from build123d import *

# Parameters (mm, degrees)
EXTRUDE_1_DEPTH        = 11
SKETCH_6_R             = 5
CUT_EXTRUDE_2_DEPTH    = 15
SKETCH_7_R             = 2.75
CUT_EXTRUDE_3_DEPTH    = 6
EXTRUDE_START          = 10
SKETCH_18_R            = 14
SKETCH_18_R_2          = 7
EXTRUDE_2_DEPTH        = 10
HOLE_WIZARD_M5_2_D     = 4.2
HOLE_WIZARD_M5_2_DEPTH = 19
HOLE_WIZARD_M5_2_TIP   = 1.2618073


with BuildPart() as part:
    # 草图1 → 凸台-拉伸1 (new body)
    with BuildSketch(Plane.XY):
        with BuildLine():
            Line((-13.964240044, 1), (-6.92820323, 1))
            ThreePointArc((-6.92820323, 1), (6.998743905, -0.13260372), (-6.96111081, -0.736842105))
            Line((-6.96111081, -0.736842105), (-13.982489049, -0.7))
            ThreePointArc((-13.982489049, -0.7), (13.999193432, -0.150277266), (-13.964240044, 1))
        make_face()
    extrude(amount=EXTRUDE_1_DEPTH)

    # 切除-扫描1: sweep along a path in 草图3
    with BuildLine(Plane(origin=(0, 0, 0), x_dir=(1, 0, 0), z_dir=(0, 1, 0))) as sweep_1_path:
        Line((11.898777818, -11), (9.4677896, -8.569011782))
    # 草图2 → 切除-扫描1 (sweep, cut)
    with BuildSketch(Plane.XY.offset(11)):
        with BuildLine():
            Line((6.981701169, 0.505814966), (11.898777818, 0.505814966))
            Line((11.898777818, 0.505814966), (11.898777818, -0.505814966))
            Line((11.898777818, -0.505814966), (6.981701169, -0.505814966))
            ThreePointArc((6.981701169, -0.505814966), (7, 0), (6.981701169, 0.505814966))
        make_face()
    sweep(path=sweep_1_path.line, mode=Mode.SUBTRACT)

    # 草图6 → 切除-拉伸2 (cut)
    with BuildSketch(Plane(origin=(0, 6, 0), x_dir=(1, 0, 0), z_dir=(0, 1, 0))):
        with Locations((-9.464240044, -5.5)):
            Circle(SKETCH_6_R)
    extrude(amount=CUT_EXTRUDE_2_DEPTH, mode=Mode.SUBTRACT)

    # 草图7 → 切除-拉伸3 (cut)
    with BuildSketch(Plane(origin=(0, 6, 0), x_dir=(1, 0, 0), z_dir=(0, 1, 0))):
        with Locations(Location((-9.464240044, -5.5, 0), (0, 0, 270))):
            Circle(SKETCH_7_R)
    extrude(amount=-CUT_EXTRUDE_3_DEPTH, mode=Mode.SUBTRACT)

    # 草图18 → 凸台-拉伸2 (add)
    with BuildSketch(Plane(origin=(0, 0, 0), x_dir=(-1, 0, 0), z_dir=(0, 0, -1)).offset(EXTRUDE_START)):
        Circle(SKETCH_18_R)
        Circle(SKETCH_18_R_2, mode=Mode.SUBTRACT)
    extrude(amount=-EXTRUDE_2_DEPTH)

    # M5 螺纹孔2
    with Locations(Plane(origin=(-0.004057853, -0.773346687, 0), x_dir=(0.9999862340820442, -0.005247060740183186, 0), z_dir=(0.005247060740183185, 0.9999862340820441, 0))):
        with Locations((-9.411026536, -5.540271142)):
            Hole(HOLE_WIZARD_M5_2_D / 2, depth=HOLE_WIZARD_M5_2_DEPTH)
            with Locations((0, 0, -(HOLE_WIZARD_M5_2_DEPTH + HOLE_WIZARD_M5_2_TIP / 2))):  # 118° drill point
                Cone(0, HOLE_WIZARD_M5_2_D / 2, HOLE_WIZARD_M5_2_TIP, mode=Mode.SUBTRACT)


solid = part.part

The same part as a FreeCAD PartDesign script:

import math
import FreeCAD as App
import Part
import Sketcher
Q = App.Units.Quantity

doc = App.newDocument("Part")
params = doc.addObject("Spreadsheet::Sheet", "Params")
for row, (alias, value) in enumerate([
    ("sketch1_radius", "7 mm"),
    ("sketch1_radius2", "14 mm"),
    ("pad1_length", "11 mm"),
    ("sketch2_radius", "7 mm"),
    ("sketch4_diameter", "10 mm"),
    ("pocket1_length", "15 mm"),
    ("sketch5_diameter", "5.5 mm"),
    ("pocket2_length", "6 mm"),
    ("sketch6_diameter", "28 mm"),
    ("sketch6_diameter2", "14 mm"),
    ("pad2_length", "10 mm"),
    ("sketch7_diameter", "4.2 mm"),
    ("hole_diameter", "4.2 mm"),
    ("hole_depth", "19 mm"),
], start=1):
    params.set(f"A{row}", alias)
    params.set(f"B{row}", "=" + value)
    params.setAlias(f"B{row}", alias)

body = doc.addObject("PartDesign::Body", "Body")

# Sketch on XY plane
sketch1 = body.newObject("Sketcher::SketchObject", "Sketch")
sketch1.AttachmentSupport = (doc.getObject("XY_Plane"), [""])
sketch1.MapMode = "FlatFace"
sketch1.addGeometry([
    Part.LineSegment(App.Vector(-14, 1, 0), App.Vector(-6.9, 1, 0)),
    Part.ArcOfCircle(Part.Circle(App.Vector(0, 0, 0), App.Vector(0, 0, 1), 7), math.radians(-174), math.radians(172)),
    Part.LineSegment(App.Vector(-7, -0.7, 0), App.Vector(-14, -0.7, 0)),
    Part.ArcOfCircle(Part.Circle(App.Vector(0, 0, 0), App.Vector(0, 0, 1), 14), math.radians(-177), math.radians(176)),
], False)
sketch1.addConstraint([
    Sketcher.Constraint("Coincident", 0, 2, 1, 2),
    Sketcher.Constraint("Coincident", 1, 1, 2, 1),
    Sketcher.Constraint("Coincident", 2, 2, 3, 1),
    Sketcher.Constraint("Coincident", 3, 2, 0, 1),
    Sketcher.Constraint("Horizontal", 0),
    Sketcher.Constraint("Coincident", 1, 3, -1, 1),
    Sketcher.Constraint("Coincident", 3, 3, -1, 1),
    Sketcher.Constraint("Radius", 1, Q("7 mm")),
    Sketcher.Constraint("Radius", 3, Q("14 mm")),
    Sketcher.Constraint("DistanceY", -1, 1, 0, 2, Q("1 mm")),
    Sketcher.Constraint("DistanceY", 2, 2, -1, 1, Q("0.7 mm")),
    Sketcher.Constraint("DistanceX", 1, 1, -1, 1, Q("6.961111 mm")),
])
sketch1.setExpression("Constraints[7]", "Params.sketch1_radius")
sketch1.setExpression("Constraints[8]", "Params.sketch1_radius2")
pad1 = body.newObject("PartDesign::Pad", "Pad")
pad1.Profile = sketch1
pad1.setExpression("Length", "Params.pad1_length")

# Sketch on XY plane
sketch2 = body.newObject("Sketcher::SketchObject", "Sketch001")
sketch2.AttachmentSupport = (doc.getObject("XY_Plane"), [""])
sketch2.MapMode = "FlatFace"
sketch2.AttachmentOffset = App.Placement(App.Vector(0, 0, 11), App.Rotation())
sketch2.addGeometry([
    Part.LineSegment(App.Vector(11.9, 0.5, 0), App.Vector(7, 0.5, 0)),
    Part.ArcOfCircle(Part.Circle(App.Vector(0, 0, 0), App.Vector(0, 0, 1), 7), math.radians(-4.14), math.radians(4.14)),
    Part.LineSegment(App.Vector(7, -0.5, 0), App.Vector(11.9, -0.5, 0)),
    Part.LineSegment(App.Vector(11.9, -0.5, 0), App.Vector(11.9, 0.5, 0)),
], False)
sketch2.addConstraint([
    Sketcher.Constraint("Coincident", 0, 2, 1, 2),
    Sketcher.Constraint("Coincident", 1, 1, 2, 1),
    Sketcher.Constraint("Coincident", 2, 2, 3, 1),
    Sketcher.Constraint("Coincident", 3, 2, 0, 1),
    Sketcher.Constraint("Horizontal", 0),
    Sketcher.Constraint("Horizontal", 2),
    Sketcher.Constraint("Vertical", 3),
    Sketcher.Constraint("Coincident", 1, 3, -1, 1),
    Sketcher.Constraint("Vertical", 0, 2, 1, 1),
    Sketcher.Constraint("Radius", 1, Q("7 mm")),
    Sketcher.Constraint("DistanceY", 3, 1, 3, 2, Q("1.01163 mm")),
    Sketcher.Constraint("DistanceX", 0, 2, 0, 1, Q("4.917077 mm")),
])
sketch2.setExpression("Constraints[9]", "Params.sketch2_radius")

# Sketch on an angled plane
sketch3 = body.newObject("Sketcher::SketchObject", "Sketch002")
sketch3.Placement = App.Placement(App.Vector(0.449389, 0, -0.449389), App.Rotation(App.Vector(-0.707106781, 0, -0.707106781), App.Vector(0, 0.999999999, 0), App.Vector(0.707106781, 0, -0.707106781), "ZXY"))
sketch3.addGeometry(Part.LineSegment(App.Vector(-16.2, 0, 0), App.Vector(-12.8, 0, 0)), False)
sketch3.addConstraint([
    Sketcher.Constraint("Horizontal", 0),
    Sketcher.Constraint("PointOnObject", 0, 1, -1),
    Sketcher.Constraint("DistanceX", 0, 1, 0, 2, Q("3.437937 mm")),
    Sketcher.Constraint("DistanceX", 0, 1, -1, 1, Q("16.191881 mm")),
])
doc.recompute()

subtractivepipe = body.newObject("PartDesign::SubtractivePipe", "SubtractivePipe")
subtractivepipe.Profile = sketch2
subtractivepipe.Spine = (sketch3, ["Edge1"])

# Sketch on XZ plane
sketch4 = body.newObject("Sketcher::SketchObject", "Sketch003")
sketch4.AttachmentSupport = (doc.getObject("XZ_Plane"), [""])
sketch4.MapMode = "FlatFace"
sketch4.AttachmentOffset = App.Placement(App.Vector(0, 0, -6), App.Rotation())
sketch4.addGeometry(Part.Circle(App.Vector(-9, 6, 0), App.Vector(0, 0, 1), 5), False)
sketch4.addConstraint([
    Sketcher.Constraint("Diameter", 0, Q("10 mm")),
    Sketcher.Constraint("DistanceY", -1, 1, 0, 3, Q("5.5 mm")),
    Sketcher.Constraint("DistanceX", 0, 3, -1, 1, Q("9.46424 mm")),
])
sketch4.setExpression("Constraints[0]", "Params.sketch4_diameter")
pocket1 = body.newObject("PartDesign::Pocket", "Pocket")
pocket1.Profile = sketch4
pocket1.setExpression("Length", "Params.pocket1_length")

# Sketch on XZ plane
sketch5 = body.newObject("Sketcher::SketchObject", "Sketch004")
sketch5.AttachmentSupport = (doc.getObject("XZ_Plane"), [""])
sketch5.MapMode = "FlatFace"
sketch5.AttachmentOffset = App.Placement(App.Vector(0, 0, -6), App.Rotation())
sketch5.addGeometry(Part.Circle(App.Vector(-9.5, 5.5, 0), App.Vector(0, 0, 1), 2.8), False)
sketch5.addConstraint([
    Sketcher.Constraint("Diameter", 0, Q("5.5 mm")),
    Sketcher.Constraint("DistanceY", -1, 1, 0, 3, Q("5.5 mm")),
    Sketcher.Constraint("DistanceX", 0, 3, -1, 1, Q("9.46424 mm")),
])
sketch5.setExpression("Constraints[0]", "Params.sketch5_diameter")
pocket2 = body.newObject("PartDesign::Pocket", "Pocket001")
pocket2.Profile = sketch5
pocket2.setExpression("Length", "Params.pocket2_length")
pocket2.Reversed = True

# Sketch on XY plane
sketch6 = body.newObject("Sketcher::SketchObject", "Sketch005")
sketch6.AttachmentSupport = (doc.getObject("XY_Plane"), [""])
sketch6.MapMode = "FlatFace"
sketch6.AttachmentOffset = App.Placement(App.Vector(0, 0, -10), App.Rotation())
sketch6.addGeometry([
    Part.Circle(App.Vector(0, 0, 0), App.Vector(0, 0, 1), 14),
    Part.Circle(App.Vector(0, 0, 0), App.Vector(0, 0, 1), 7),
], False)
sketch6.addConstraint([
    Sketcher.Constraint("Coincident", 0, 3, -1, 1),
    Sketcher.Constraint("Coincident", 1, 3, -1, 1),
    Sketcher.Constraint("Diameter", 0, Q("28 mm")),
    Sketcher.Constraint("Diameter", 1, Q("14 mm")),
])
sketch6.setExpression("Constraints[2]", "Params.sketch6_diameter")
sketch6.setExpression("Constraints[3]", "Params.sketch6_diameter2")
pad2 = body.newObject("PartDesign::Pad", "Pad001")
pad2.Profile = sketch6
pad2.setExpression("Length", "Params.pad2_length")

# Sketch on an angled plane
sketch7 = body.newObject("Sketcher::SketchObject", "Sketch006")
sketch7.Placement = App.Placement(App.Vector(-0.004058, -0.773347, 0), App.Rotation(App.Vector(0.999986234, -0.005247061, 0), App.Vector(0, 0, -1), App.Vector(0.005247061, 0.999986234, 0), "ZXY"))
sketch7.addGeometry(Part.Circle(App.Vector(-9.4, -5.5, 0), App.Vector(0, 0, 1), 2.1), False)
sketch7.addConstraint([
    Sketcher.Constraint("Diameter", 0, Q("4.2 mm")),
    Sketcher.Constraint("DistanceY", 0, 3, -1, 1, Q("5.540271 mm")),
    Sketcher.Constraint("DistanceX", 0, 3, -1, 1, Q("9.411027 mm")),
])
sketch7.setExpression("Constraints[0]", "Params.sketch7_diameter")
doc.recompute()
hole = body.newObject("PartDesign::Hole", "Hole")
hole.Profile = sketch7
hole.ThreadType = "None"
hole.setExpression("Diameter", "Params.hole_diameter")
hole.DepthType = "Dimension"
hole.setExpression("Depth", "Params.hole_depth")
hole.DrillPoint = "Angled"
hole.DrillPointAngle = 118

doc.recompute()
